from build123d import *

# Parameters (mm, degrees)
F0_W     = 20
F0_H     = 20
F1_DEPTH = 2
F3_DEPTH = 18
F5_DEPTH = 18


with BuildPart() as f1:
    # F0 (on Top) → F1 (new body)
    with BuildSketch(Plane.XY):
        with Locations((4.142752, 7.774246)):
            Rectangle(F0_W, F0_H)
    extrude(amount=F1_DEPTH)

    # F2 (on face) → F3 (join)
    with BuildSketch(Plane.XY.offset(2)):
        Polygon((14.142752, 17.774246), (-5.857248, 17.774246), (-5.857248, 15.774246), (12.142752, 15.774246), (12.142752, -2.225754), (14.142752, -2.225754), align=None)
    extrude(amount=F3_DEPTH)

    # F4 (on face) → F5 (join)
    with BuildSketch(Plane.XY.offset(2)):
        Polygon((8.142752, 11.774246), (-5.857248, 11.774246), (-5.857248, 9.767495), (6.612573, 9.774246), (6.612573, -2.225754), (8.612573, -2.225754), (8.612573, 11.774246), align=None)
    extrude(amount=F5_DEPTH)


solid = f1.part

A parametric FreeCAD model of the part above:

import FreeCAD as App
import Part
import Sketcher


def add_polygon(sketch, points):
    """Adds a closed chain of lines whose ends are joined by coincident constraints."""
    first, n = sketch.GeometryCount, len(points)
    for a, b in zip(points, points[1:] + points[:1]):
        sketch.addGeometry(Part.LineSegment(App.Vector(*a, 0), App.Vector(*b, 0)), False)
    for i in range(n):
        sketch.addConstraint(Sketcher.Constraint("Coincident", first + i, 2, first + (i + 1) % n, 1))

doc = App.newDocument("Part")
params = doc.addObject("Spreadsheet::Sheet", "Params")
for row, (alias, value) in enumerate([
    ("sketch1_width", "20 mm"),
    ("pad1_length", "2 mm"),
    ("sketch2_width", "20 mm"),
    ("sketch2_width2", "18 mm"),
    ("pad2_length", "18 mm"),
    ("sketch3_width", "2 mm"),
    ("sketch3_height", "12 mm"),
    ("sketch3_height2", "14 mm"),
    ("pad3_length", "18 mm"),
], start=1):
    params.set(f"A{row}", alias)
    params.set(f"B{row}", "=" + value)
    params.setAlias(f"B{row}", alias)

body = doc.addObject("PartDesign::Body", "Body")

sketch1 = body.newObject("Sketcher::SketchObject", "Sketch")
sketch1.AttachmentSupport = (doc.getObject("XY_Plane"), [""])
sketch1.MapMode = "FlatFace"
add_polygon(sketch1, [(-6, 18), (-6, -2), (14, -2), (14, 18)])
sketch1.addConstraint(Sketcher.Constraint("Vertical", 0))
sketch1.addConstraint(Sketcher.Constraint("Horizontal", 1))
sketch1.addConstraint(Sketcher.Constraint("Vertical", 2))
sketch1.addConstraint(Sketcher.Constraint("Horizontal", 3))
sketch1.addConstraint(Sketcher.Constraint("Equal", 3, 0))
sketch1.addConstraint(Sketcher.Constraint("DistanceX", 1, 1, 1, 2, 20.0))
sketch1.addConstraint(Sketcher.Constraint("DistanceX", 0, 2, -1, 1, 5.857248))
sketch1.addConstraint(Sketcher.Constraint("DistanceY", 0, 2, -1, 1, 2.225754))
sketch1.setExpression("Constraints[9]", "Params.sketch1_width")
pad1 = body.newObject("PartDesign::Pad", "Pad")
pad1.Profile = sketch1
pad1.setExpression("Length", "Params.pad1_length")

sketch2 = body.newObject("Sketcher::SketchObject", "Sketch001")
sketch2.AttachmentSupport = (doc.getObject("XY_Plane"), [""])
sketch2.MapMode = "FlatFace"
sketch2.AttachmentOffset = App.Placement(App.Vector(0, 0, 2), App.Rotation())
add_polygon(sketch2, [(14.1, 17.8), (-5.9, 17.8), (-5.9, 15.8), (12.1, 15.8), (12.1, -2.2), (14.1, -2.2)])
sketch2.addConstraint(Sketcher.Constraint("Horizontal", 0))
sketch2.addConstraint(Sketcher.Constraint("Vertical", 1))
sketch2.addConstraint(Sketcher.Constraint("Horizontal", 2))
sketch2.addConstraint(Sketcher.Constraint("Vertical", 3))
sketch2.addConstraint(Sketcher.Constraint("Horizontal", 4))
sketch2.addConstraint(Sketcher.Constraint("Vertical", 5))
sketch2.addConstraint(Sketcher.Constraint("Equal", 4, 1))
sketch2.addConstraint(Sketcher.Constraint("Equal", 2, 3))
sketch2.addConstraint(Sketcher.Constraint("DistanceX", 0, 2, 0, 1, 20.0))
sketch2.addConstraint(Sketcher.Constraint("DistanceX", 2, 1, 2, 2, 18.0))
sketch2.addConstraint(Sketcher.Constraint("DistanceX", 0, 2, -1, 1, 5.857248))
sketch2.addConstraint(Sketcher.Constraint("DistanceY", -1, 1, 0, 2, 17.774246))
sketch2.setExpression("Constraints[14]", "Params.sketch2_width")
sketch2.setExpression("Constraints[15]", "Params.sketch2_width2")
pad2 = body.newObject("PartDesign::Pad", "Pad001")
pad2.Profile = sketch2
pad2.setExpression("Length", "Params.pad2_length")

sketch3 = body.newObject("Sketcher::SketchObject", "Sketch002")
sketch3.AttachmentSupport = (doc.getObject("XY_Plane"), [""])
sketch3.MapMode = "FlatFace"
sketch3.AttachmentOffset = App.Placement(App.Vector(0, 0, 2), App.Rotation())
add_polygon(sketch3, [(-5.9, 11.8), (-5.9, 9.8), (6.6, 9.8), (6.6, -2.2), (8.6, -2.2), (8.6, 11.8)])
sketch3.addConstraint(Sketcher.Constraint("Vertical", 0))
sketch3.addConstraint(Sketcher.Constraint("Vertical", 2))
sketch3.addConstraint(Sketcher.Constraint("Horizontal", 3))
sketch3.addConstraint(Sketcher.Constraint("Vertical", 4))
sketch3.addConstraint(Sketcher.Constraint("Horizontal", 5))
sketch3.addConstraint(Sketcher.Constraint("DistanceX", 3, 1, 3, 2, 2.0))
sketch3.addConstraint(Sketcher.Constraint("DistanceY", 2, 2, 2, 1, 12.0))
sketch3.addConstraint(Sketcher.Constraint("DistanceY", 4, 1, 4, 2, 14.0))
sketch3.addConstraint(Sketcher.Constraint("DistanceX", 5, 2, 5, 1, 14.469821))
sketch3.addConstraint(Sketcher.Constraint("DistanceY", 0, 2, 0, 1, 2.006751))
sketch3.addConstraint(Sketcher.Constraint("DistanceX", 0, 2, -1, 1, 5.857248))
sketch3.addConstraint(Sketcher.Constraint("DistanceY", -1, 1, 0, 2, 9.767495))
sketch3.setExpression("Constraints[11]", "Params.sketch3_width")
sketch3.setExpression("Constraints[12]", "Params.sketch3_height")
sketch3.setExpression("Constraints[13]", "Params.sketch3_height2")
pad3 = body.newObject("PartDesign::Pad", "Pad002")
pad3.Profile = sketch3
pad3.setExpression("Length", "Params.pad3_length")

doc.recompute()
